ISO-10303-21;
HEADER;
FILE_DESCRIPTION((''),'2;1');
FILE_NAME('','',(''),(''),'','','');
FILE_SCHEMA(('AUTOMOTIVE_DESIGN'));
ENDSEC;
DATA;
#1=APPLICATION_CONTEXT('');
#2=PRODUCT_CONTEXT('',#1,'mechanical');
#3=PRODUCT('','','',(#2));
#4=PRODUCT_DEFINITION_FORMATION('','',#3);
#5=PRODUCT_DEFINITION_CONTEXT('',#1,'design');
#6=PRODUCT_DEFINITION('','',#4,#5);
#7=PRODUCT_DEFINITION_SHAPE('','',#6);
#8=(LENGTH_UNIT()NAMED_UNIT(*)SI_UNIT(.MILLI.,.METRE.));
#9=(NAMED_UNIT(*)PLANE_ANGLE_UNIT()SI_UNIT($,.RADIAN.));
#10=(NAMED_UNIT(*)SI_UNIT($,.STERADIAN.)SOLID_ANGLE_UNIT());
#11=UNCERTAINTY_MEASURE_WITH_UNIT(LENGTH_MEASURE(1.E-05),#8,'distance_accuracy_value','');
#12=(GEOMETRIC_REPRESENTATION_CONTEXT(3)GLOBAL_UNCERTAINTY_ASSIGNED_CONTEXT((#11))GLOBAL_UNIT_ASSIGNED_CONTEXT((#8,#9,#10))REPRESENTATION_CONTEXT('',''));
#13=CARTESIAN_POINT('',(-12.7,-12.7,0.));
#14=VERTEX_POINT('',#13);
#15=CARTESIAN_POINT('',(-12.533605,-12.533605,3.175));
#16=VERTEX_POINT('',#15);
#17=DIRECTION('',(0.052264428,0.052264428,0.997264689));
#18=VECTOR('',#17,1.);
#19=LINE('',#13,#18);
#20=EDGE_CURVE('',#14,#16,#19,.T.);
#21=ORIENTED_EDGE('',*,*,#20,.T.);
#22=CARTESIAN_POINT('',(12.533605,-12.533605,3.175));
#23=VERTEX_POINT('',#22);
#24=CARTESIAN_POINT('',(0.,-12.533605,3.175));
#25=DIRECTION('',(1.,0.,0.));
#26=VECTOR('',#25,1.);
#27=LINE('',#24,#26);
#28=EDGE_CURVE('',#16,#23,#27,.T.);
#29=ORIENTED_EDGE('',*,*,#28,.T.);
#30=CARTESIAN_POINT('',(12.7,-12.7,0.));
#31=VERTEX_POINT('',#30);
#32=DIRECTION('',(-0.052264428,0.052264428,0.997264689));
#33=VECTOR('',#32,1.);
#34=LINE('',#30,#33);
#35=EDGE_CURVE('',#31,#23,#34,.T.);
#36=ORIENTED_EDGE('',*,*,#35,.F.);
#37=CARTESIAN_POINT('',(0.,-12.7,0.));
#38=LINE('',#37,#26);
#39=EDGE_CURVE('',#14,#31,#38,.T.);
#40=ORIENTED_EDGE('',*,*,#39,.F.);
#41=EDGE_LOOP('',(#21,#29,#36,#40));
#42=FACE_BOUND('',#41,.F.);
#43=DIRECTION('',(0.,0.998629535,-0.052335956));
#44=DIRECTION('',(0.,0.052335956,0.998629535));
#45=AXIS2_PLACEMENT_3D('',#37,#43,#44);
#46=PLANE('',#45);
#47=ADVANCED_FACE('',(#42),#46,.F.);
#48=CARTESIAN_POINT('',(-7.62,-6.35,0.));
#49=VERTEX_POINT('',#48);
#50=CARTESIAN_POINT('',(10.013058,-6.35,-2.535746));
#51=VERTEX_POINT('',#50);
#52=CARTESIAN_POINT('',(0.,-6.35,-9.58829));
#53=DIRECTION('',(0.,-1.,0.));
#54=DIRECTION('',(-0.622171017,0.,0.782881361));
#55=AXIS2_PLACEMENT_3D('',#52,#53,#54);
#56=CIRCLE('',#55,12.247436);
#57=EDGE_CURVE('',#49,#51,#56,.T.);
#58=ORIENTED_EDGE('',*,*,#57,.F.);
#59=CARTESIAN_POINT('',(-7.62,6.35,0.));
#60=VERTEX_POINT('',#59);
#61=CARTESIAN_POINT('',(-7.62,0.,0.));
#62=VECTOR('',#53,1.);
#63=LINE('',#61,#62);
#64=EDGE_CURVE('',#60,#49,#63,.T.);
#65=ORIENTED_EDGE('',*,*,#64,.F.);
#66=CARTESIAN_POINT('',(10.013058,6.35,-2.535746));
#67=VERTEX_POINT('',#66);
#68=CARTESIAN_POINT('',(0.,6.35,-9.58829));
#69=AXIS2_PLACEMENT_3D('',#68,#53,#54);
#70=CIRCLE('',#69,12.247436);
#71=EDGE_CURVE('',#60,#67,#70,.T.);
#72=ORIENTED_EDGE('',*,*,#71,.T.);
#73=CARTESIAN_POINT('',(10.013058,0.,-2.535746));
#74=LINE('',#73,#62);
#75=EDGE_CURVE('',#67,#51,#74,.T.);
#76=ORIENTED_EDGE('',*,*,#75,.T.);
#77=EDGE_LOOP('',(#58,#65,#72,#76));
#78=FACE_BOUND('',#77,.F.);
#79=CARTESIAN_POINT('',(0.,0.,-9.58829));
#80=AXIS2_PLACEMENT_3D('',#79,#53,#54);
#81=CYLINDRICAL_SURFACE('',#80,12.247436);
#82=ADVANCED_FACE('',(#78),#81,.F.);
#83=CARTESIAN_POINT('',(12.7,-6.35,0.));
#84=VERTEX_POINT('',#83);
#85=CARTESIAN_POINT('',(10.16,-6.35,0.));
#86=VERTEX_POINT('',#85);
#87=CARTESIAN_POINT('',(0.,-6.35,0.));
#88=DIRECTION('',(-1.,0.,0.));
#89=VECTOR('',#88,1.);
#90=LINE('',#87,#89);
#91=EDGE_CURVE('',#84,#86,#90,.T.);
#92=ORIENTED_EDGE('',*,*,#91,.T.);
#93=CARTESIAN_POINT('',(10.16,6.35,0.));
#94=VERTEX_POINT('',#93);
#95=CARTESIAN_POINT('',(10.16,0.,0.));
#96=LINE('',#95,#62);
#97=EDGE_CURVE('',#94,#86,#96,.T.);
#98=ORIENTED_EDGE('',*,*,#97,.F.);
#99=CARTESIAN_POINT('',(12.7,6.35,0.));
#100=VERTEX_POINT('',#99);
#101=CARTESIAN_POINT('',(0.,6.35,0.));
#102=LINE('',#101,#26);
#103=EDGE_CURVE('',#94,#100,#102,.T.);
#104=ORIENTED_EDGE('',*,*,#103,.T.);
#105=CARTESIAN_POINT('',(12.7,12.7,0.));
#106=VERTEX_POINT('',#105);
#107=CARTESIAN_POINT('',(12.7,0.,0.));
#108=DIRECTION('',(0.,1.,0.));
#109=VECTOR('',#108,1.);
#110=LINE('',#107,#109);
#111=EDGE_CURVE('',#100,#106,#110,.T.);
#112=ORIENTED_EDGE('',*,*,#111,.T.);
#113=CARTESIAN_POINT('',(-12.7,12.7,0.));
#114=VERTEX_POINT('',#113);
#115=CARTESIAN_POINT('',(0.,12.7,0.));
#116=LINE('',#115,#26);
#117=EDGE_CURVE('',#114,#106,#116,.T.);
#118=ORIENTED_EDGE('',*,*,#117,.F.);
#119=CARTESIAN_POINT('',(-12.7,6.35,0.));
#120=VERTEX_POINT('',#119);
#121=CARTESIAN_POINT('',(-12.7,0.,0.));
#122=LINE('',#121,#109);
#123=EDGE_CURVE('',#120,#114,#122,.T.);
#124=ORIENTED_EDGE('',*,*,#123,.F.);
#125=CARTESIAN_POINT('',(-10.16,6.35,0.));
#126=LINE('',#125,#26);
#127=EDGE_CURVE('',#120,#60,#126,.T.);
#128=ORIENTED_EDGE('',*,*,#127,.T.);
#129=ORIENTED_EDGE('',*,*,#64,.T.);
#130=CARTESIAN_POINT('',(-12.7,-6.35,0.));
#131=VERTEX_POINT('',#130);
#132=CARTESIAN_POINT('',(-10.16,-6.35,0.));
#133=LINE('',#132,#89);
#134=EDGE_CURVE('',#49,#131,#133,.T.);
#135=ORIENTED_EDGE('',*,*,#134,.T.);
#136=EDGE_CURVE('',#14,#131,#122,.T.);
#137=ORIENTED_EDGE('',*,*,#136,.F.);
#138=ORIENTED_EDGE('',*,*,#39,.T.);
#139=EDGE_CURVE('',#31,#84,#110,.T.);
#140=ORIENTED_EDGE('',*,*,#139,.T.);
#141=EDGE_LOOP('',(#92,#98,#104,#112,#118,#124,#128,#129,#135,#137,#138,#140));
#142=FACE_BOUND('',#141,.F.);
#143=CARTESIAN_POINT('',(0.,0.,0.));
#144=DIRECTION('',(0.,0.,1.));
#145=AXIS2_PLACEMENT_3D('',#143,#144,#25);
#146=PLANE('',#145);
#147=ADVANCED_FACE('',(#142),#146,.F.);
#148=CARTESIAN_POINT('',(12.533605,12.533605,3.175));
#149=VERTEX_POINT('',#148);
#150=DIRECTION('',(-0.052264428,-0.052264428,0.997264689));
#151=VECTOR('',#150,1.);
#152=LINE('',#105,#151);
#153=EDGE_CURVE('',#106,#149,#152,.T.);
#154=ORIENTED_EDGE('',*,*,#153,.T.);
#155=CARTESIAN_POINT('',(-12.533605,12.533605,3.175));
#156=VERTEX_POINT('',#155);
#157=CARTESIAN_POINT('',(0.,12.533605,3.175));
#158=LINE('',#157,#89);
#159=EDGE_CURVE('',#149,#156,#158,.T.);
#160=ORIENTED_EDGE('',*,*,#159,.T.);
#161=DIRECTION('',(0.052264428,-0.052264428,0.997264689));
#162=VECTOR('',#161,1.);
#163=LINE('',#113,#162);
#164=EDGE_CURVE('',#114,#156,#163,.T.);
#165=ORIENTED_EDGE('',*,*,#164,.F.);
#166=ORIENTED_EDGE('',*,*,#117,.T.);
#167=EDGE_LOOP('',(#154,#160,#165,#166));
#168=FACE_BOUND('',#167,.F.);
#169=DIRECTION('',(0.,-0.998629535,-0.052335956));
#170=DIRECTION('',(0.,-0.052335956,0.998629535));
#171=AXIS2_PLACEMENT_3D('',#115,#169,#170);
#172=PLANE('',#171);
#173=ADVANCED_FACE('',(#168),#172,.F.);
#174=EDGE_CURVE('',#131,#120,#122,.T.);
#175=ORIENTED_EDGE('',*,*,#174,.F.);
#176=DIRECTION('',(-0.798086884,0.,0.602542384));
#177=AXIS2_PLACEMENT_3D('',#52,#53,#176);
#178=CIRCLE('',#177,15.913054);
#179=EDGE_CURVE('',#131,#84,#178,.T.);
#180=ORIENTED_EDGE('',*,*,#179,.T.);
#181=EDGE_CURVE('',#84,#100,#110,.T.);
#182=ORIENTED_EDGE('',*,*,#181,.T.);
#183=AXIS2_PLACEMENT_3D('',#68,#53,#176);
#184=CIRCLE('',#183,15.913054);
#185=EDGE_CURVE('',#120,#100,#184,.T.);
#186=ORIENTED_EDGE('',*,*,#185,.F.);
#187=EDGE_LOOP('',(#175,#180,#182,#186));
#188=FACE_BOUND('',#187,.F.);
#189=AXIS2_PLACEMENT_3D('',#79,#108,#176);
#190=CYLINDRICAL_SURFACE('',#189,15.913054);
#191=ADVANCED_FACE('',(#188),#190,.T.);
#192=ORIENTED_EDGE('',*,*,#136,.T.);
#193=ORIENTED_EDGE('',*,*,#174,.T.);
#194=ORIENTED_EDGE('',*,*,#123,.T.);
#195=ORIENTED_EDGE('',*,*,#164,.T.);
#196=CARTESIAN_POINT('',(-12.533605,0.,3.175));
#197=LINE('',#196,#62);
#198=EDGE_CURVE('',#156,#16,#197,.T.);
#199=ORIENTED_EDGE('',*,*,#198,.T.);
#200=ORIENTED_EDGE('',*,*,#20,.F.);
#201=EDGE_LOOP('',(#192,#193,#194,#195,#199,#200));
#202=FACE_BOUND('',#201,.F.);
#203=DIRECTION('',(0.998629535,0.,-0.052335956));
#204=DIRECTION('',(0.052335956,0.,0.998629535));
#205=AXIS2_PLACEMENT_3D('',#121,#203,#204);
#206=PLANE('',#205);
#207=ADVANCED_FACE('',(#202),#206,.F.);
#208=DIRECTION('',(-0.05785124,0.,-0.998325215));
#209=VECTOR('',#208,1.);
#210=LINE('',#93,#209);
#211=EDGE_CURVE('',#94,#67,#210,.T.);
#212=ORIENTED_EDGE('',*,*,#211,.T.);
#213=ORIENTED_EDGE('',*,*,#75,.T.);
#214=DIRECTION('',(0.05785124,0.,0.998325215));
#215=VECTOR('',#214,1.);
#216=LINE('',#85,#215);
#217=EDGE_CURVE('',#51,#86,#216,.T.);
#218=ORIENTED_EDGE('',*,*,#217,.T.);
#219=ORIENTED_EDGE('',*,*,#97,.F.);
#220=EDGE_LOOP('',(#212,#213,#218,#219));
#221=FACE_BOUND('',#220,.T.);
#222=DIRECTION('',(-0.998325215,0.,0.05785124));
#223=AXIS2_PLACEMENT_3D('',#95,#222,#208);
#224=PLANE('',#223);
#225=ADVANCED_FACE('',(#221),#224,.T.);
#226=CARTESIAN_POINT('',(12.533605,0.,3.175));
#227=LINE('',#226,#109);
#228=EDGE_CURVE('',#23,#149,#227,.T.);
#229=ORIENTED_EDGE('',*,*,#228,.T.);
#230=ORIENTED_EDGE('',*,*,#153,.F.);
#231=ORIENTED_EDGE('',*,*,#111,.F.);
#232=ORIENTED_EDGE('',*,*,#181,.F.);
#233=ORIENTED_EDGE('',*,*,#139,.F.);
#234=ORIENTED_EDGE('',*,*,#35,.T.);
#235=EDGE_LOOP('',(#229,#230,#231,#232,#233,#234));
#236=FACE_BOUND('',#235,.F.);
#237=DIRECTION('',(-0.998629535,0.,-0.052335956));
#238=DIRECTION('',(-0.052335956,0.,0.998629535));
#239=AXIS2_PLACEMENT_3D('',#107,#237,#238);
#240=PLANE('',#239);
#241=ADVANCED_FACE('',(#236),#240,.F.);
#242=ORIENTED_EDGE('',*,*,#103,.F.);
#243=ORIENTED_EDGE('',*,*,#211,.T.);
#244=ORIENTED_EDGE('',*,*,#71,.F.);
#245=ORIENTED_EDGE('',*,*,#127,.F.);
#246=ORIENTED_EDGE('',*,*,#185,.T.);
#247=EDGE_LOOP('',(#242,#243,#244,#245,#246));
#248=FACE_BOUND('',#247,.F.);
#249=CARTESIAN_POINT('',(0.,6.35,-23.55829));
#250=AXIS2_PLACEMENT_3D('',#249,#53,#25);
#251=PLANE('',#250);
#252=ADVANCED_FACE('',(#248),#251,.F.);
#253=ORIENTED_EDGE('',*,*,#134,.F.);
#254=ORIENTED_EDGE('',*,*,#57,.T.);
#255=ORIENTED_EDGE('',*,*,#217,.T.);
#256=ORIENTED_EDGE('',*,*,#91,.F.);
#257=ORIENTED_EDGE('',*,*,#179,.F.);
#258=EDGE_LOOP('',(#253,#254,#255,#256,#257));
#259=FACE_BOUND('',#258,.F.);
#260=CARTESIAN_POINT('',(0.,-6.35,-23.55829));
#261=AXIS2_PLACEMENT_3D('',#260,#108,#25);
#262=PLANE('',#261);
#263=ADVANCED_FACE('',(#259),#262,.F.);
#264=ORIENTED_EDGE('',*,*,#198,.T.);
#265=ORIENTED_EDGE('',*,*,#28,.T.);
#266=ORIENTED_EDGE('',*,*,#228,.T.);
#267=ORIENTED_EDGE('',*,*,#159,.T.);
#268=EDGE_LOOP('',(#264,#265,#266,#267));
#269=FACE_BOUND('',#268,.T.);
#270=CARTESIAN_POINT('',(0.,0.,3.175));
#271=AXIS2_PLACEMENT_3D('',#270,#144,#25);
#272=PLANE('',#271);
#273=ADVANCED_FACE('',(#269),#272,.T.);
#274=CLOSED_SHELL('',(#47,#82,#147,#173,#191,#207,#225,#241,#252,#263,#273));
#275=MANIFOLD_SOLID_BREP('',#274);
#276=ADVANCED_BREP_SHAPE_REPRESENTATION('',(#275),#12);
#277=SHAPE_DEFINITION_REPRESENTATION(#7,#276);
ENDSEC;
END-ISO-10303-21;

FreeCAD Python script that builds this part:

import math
import FreeCAD as App
import Part
import Sketcher
Q = App.Units.Quantity

doc = App.newDocument("Part")
body = doc.addObject("PartDesign::Body", "Body")

sketch1 = body.newObject("Sketcher::SketchObject", "Sketch")
sketch1.AttachmentSupport = (doc.getObject("XY_Plane"), [""])
sketch1.MapMode = "FlatFace"
sketch1.addGeometry([
    Part.LineSegment(App.Vector(-12.7, 12.7, 0), App.Vector(-12.7, -12.7, 0)),
    Part.LineSegment(App.Vector(-12.7, -12.7, 0), App.Vector(12.7, -12.7, 0)),
    Part.LineSegment(App.Vector(12.7, -12.7, 0), App.Vector(12.7, 12.7, 0)),
    Part.LineSegment(App.Vector(12.7, 12.7, 0), App.Vector(-12.7, 12.7, 0)),
], False)
sketch1.addConstraint([
    Sketcher.Constraint("Coincident", 0, 2, 1, 1),
    Sketcher.Constraint("Coincident", 1, 2, 2, 1),
    Sketcher.Constraint("Coincident", 2, 2, 3, 1),
    Sketcher.Constraint("Coincident", 3, 2, 0, 1),
    Sketcher.Constraint("Vertical", 0),
    Sketcher.Constraint("Horizontal", 1),
    Sketcher.Constraint("Vertical", 2),
    Sketcher.Constraint("Horizontal", 3),
    Sketcher.Constraint("Symmetric", 0, 2, 2, 2, -1, 1),
    Sketcher.Constraint("Equal", 3, 0),
    Sketcher.Constraint("DistanceX", 1, 1, 1, 2, Q("1 in")),
])
pad1 = body.newObject("PartDesign::Pad", "Pad")
pad1.Profile = sketch1
pad1.Length = Q("0.125 in")
pad1.TaperAngle = -3

sketch2 = body.newObject("Sketcher::SketchObject", "Sketch001")
sketch2.AttachmentSupport = (doc.getObject("XY_Plane"), [""])
sketch2.MapMode = "FlatFace"
sketch2.addGeometry([
    Part.LineSegment(App.Vector(-12.7, -6.35, 0), App.Vector(-12.7, 6.35, 0)),
    Part.LineSegment(App.Vector(-12.7, 6.35, 0), App.Vector(-7.62, 6.35, 0)),
    Part.LineSegment(App.Vector(-7.62, 6.35, 0), App.Vector(-7.62, -6.35, 0)),
    Part.LineSegment(App.Vector(-7.62, -6.35, 0), App.Vector(-12.7, -6.35, 0)),
], False)
sketch2.addConstraint([
    Sketcher.Constraint("Coincident", 0, 2, 1, 1),
    Sketcher.Constraint("Coincident", 1, 2, 2, 1),
    Sketcher.Constraint("Coincident", 2, 2, 3, 1),
    Sketcher.Constraint("Coincident", 3, 2, 0, 1),
    Sketcher.Constraint("Vertical", 0),
    Sketcher.Constraint("Horizontal", 1),
    Sketcher.Constraint("Vertical", 2),
    Sketcher.Constraint("Horizontal", 3),
    Sketcher.Constraint("DistanceX", 1, 1, 1, 2, Q("0.2 in")),
    Sketcher.Constraint("DistanceY", 0, 1, 0, 2, Q("0.5 in")),
    Sketcher.Constraint("DistanceX", 0, 2, -1, 1, Q("0.5 in")),
    Sketcher.Constraint("DistanceY", -1, 1, 0, 2, Q("0.25 in")),
])

sketch3 = body.newObject("Sketcher::SketchObject", "Sketch002")
sketch3.AttachmentSupport = (doc.getObject("XZ_Plane"), [""])
sketch3.MapMode = "FlatFace"
sketch3.addGeometry(Part.ArcOfCircle(Part.Circle(App.Vector(0, -9.58829, 0), App.Vector(0, 0, 1), 13.97), math.radians(136.658242), math.radians(403.341758)), False)
sketch3.addConstraint([
    Sketcher.Constraint("Symmetric", 0, 1, 0, 2, -1, 1),
    Sketcher.Constraint("PointOnObject", 0, 3, -2),
    Sketcher.Constraint("Radius", 0, Q("0.55 in")),
    Sketcher.Constraint("DistanceX", 0, 1, -1, 1, Q("0.4 in")),
])
doc.recompute()

additivepipe = body.newObject("PartDesign::AdditivePipe", "AdditivePipe")
additivepipe.Profile = sketch2
additivepipe.Spine = (sketch3, ["Edge1"])

doc.recompute()
